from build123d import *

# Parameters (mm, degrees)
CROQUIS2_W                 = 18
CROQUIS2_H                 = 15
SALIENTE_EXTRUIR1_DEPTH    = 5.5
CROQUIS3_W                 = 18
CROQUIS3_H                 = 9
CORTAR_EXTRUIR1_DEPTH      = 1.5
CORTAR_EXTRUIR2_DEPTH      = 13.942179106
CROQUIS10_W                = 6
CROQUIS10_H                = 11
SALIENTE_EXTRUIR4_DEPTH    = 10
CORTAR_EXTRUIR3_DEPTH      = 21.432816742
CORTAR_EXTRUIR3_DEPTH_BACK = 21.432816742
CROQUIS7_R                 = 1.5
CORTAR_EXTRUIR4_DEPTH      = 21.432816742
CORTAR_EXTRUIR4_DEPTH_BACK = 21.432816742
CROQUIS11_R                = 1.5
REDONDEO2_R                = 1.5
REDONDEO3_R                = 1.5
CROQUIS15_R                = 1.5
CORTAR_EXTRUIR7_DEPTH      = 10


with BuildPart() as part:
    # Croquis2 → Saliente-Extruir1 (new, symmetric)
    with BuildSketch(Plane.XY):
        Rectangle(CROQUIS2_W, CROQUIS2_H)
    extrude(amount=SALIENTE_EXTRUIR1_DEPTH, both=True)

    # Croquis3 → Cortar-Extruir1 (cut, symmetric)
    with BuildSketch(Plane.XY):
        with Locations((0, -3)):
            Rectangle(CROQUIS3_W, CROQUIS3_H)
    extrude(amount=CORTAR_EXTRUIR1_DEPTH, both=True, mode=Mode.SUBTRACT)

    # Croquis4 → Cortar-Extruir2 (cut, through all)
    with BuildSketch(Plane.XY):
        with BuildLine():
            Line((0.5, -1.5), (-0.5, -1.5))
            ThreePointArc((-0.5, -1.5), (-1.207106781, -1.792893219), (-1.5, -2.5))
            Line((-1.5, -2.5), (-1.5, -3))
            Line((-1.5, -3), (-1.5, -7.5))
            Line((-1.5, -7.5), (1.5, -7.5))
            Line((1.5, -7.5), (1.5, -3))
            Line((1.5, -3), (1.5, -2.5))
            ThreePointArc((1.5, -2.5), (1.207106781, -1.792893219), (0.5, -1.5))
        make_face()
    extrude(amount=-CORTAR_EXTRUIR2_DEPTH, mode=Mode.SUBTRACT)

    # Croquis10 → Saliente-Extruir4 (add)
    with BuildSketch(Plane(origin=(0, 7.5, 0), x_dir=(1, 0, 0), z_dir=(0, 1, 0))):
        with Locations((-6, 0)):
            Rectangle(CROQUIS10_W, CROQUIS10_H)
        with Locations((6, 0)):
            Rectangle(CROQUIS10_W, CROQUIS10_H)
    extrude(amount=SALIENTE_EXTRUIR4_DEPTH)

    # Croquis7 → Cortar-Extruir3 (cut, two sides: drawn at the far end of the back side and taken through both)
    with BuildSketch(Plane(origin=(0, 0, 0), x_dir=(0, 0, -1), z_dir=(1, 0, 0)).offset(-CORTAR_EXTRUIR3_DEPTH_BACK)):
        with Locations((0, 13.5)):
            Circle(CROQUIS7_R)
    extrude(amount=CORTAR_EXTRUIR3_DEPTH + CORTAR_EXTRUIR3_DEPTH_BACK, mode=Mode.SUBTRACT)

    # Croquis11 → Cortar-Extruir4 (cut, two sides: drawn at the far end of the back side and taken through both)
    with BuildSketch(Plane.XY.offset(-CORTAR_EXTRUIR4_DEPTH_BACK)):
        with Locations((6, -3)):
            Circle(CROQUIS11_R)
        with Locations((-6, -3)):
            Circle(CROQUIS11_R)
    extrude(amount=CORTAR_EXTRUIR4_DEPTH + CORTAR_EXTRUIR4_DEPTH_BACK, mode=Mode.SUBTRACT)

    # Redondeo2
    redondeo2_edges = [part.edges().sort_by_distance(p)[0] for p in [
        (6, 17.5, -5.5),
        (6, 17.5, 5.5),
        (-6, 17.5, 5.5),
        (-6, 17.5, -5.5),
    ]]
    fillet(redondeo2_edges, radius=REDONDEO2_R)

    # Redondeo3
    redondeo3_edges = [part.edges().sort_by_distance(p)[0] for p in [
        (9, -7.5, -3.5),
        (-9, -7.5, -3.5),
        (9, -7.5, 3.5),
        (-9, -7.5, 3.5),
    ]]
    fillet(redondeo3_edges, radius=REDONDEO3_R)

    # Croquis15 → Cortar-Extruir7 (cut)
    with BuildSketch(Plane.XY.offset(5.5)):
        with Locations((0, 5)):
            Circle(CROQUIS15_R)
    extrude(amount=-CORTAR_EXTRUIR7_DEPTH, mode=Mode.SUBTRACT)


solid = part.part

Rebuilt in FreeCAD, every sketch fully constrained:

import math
import FreeCAD as App
import Part
import Sketcher
from FreeCAD import Vector


def edges_at(feature, points):
    """Names of the edges that pass closest to the given points."""
    edges = feature.Shape.Edges
    near = lambda p: min(range(len(edges)), key=lambda i: edges[i].distToShape(Part.Vertex(*p))[0])
    return sorted({f"Edge{near(p) + 1}" for p in points})

doc = App.newDocument("Part")
body = doc.addObject("PartDesign::Body", "Body")

# Sketch on XY plane
sketch1 = body.newObject("Sketcher::SketchObject", "Sketch")
sketch1.AttachmentSupport = (doc.getObject("XY_Plane"), [""])
sketch1.MapMode = "FlatFace"
sketch1.addGeometry([
    Part.LineSegment(Vector(-9, 8, 0), Vector(-9, -8, 0)),
    Part.LineSegment(Vector(-9, -8, 0), Vector(9, -8, 0)),
    Part.LineSegment(Vector(9, -8, 0), Vector(9, 8, 0)),
    Part.LineSegment(Vector(9, 8, 0), Vector(-9, 8, 0)),
], False)
sketch1.addConstraint([
    Sketcher.Constraint("Coincident", 0, 2, 1, 1),
    Sketcher.Constraint("Coincident", 1, 2, 2, 1),
    Sketcher.Constraint("Coincident", 2, 2, 3, 1),
    Sketcher.Constraint("Coincident", 3, 2, 0, 1),
    Sketcher.Constraint("Vertical", 0),
    Sketcher.Constraint("Horizontal", 1),
    Sketcher.Constraint("Vertical", 2),
    Sketcher.Constraint("Horizontal", 3),
    Sketcher.Constraint("Symmetric", 0, 2, 2, 2, -1, 1),
    Sketcher.Constraint("DistanceX", 1, 1, 1, 2, 18.0),
    Sketcher.Constraint("DistanceY", 0, 2, 0, 1, 15.0),
])
pad1 = body.newObject("PartDesign::Pad", "Pad")
pad1.Profile = sketch1
pad1.Length = 11
pad1.Midplane = True

# Sketch on XY plane
sketch2 = body.newObject("Sketcher::SketchObject", "Sketch001")
sketch2.AttachmentSupport = (doc.getObject("XY_Plane"), [""])
sketch2.MapMode = "FlatFace"
sketch2.addGeometry([
    Part.LineSegment(Vector(-9, 2, 0), Vector(-9, -8, 0)),
    Part.LineSegment(Vector(-9, -8, 0), Vector(9, -8, 0)),
    Part.LineSegment(Vector(9, -8, 0), Vector(9, 2, 0)),
    Part.LineSegment(Vector(9, 2, 0), Vector(-9, 2, 0)),
], False)
sketch2.addConstraint([
    Sketcher.Constraint("Coincident", 0, 2, 1, 1),
    Sketcher.Constraint("Coincident", 1, 2, 2, 1),
    Sketcher.Constraint("Coincident", 2, 2, 3, 1),
    Sketcher.Constraint("Coincident", 3, 2, 0, 1),
    Sketcher.Constraint("Vertical", 0),
    Sketcher.Constraint("Horizontal", 1),
    Sketcher.Constraint("Vertical", 2),
    Sketcher.Constraint("Horizontal", 3),
    Sketcher.Constraint("DistanceX", 1, 1, 1, 2, 18.0),
    Sketcher.Constraint("DistanceY", 0, 2, 0, 1, 9.0),
    Sketcher.Constraint("DistanceX", 0, 2, -1, 1, 9.0),
    Sketcher.Constraint("DistanceY", 0, 2, -1, 1, 7.5),
])
pocket1 = body.newObject("PartDesign::Pocket", "Pocket")
pocket1.Profile = sketch2
pocket1.Length = 3
pocket1.Midplane = True

# Sketch on XY plane
sketch3 = body.newObject("Sketcher::SketchObject", "Sketch002")
sketch3.AttachmentSupport = (doc.getObject("XY_Plane"), [""])
sketch3.MapMode = "FlatFace"
sketch3.addGeometry([
    Part.LineSegment(Vector(0.5, -1.5, 0), Vector(-0.5, -1.5, 0)),  # 0
    Part.ArcOfCircle(Part.Circle(Vector(-0.5, -2.5, 0), Vector(0, 0, 1), 1), math.radians(90), math.radians(180)),  # 1
    Part.LineSegment(Vector(-1.5, -2.5, 0), Vector(-1.5, -7.5, 0)),  # 2
    Part.LineSegment(Vector(-1.5, -7.5, 0), Vector(1.5, -7.5, 0)),  # 3
    Part.LineSegment(Vector(1.5, -7.5, 0), Vector(1.5, -2.5, 0)),  # 4
    Part.ArcOfCircle(Part.Circle(Vector(0.5, -2.5, 0), Vector(0, 0, 1), 1), math.radians(0), math.radians(90)),  # 5
], False)
sketch3.addConstraint([
    Sketcher.Constraint("Tangent", 0, 2, 1, 1),
    Sketcher.Constraint("Tangent", 1, 2, 2, 1),
    Sketcher.Constraint("Coincident", 2, 2, 3, 1),
    Sketcher.Constraint("Coincident", 3, 2, 4, 1),
    Sketcher.Constraint("Tangent", 4, 2, 5, 1),
    Sketcher.Constraint("Tangent", 5, 2, 0, 1),
    Sketcher.Constraint("Horizontal", 0),
    Sketcher.Constraint("Vertical", 2),
    Sketcher.Constraint("Horizontal", 3),
    Sketcher.Constraint("Vertical", 4),
    Sketcher.Constraint("Equal", 1, 5),
    Sketcher.Constraint("Radius", 1, 1.0),
    Sketcher.Constraint("DistanceX", 0, 2, 0, 1, 1.0),
    Sketcher.Constraint("DistanceY", 2, 2, 2, 1, 5.0),
    Sketcher.Constraint("DistanceX", 1, 3, -1, 1, 0.5),
    Sketcher.Constraint("DistanceY", 1, 3, -1, 1, 2.5),
])
pocket2 = body.newObject("PartDesign::Pocket", "Pocket001")
pocket2.Profile = sketch3
pocket2.Type = "ThroughAll"

# Sketch on XZ plane
sketch4 = body.newObject("Sketcher::SketchObject", "Sketch003")
sketch4.AttachmentSupport = (doc.getObject("XZ_Plane"), [""])
sketch4.MapMode = "FlatFace"
sketch4.AttachmentOffset = App.Placement(Vector(0, 0, -7.5), App.Rotation())
sketch4.addGeometry([
    Part.LineSegment(Vector(-9, -6, 0), Vector(-9, 6, 0)),  # 0
    Part.LineSegment(Vector(-9, 6, 0), Vector(-3, 6, 0)),  # 1
    Part.LineSegment(Vector(-3, 6, 0), Vector(-3, -6, 0)),  # 2
    Part.LineSegment(Vector(-3, -6, 0), Vector(-9, -6, 0)),  # 3
    Part.LineSegment(Vector(3, -6, 0), Vector(3, 6, 0)),  # 4
    Part.LineSegment(Vector(3, 6, 0), Vector(9, 6, 0)),  # 5
    Part.LineSegment(Vector(9, 6, 0), Vector(9, -6, 0)),  # 6
    Part.LineSegment(Vector(9, -6, 0), Vector(3, -6, 0)),  # 7
], False)
sketch4.addConstraint([
    Sketcher.Constraint("Coincident", 0, 2, 1, 1),
    Sketcher.Constraint("Coincident", 1, 2, 2, 1),
    Sketcher.Constraint("Coincident", 2, 2, 3, 1),
    Sketcher.Constraint("Coincident", 3, 2, 0, 1),
    Sketcher.Constraint("Coincident", 4, 2, 5, 1),
    Sketcher.Constraint("Coincident", 5, 2, 6, 1),
    Sketcher.Constraint("Coincident", 6, 2, 7, 1),
    Sketcher.Constraint("Coincident", 7, 2, 4, 1),
    Sketcher.Constraint("Vertical", 0),
    Sketcher.Constraint("Horizontal", 1),
    Sketcher.Constraint("Vertical", 2),
    Sketcher.Constraint("Horizontal", 3),
    Sketcher.Constraint("Vertical", 4),
    Sketcher.Constraint("Horizontal", 5),
    Sketcher.Constraint("Vertical", 6),
    Sketcher.Constraint("Horizontal", 7),
    Sketcher.Constraint("Symmetric", 2, 2, 4, 2, -1, 1),
    Sketcher.Constraint("Symmetric", 0, 2, 6, 2, -1, 1),
    Sketcher.Constraint("Horizontal", 1, 2, 4, 2),
    Sketcher.Constraint("DistanceX", 1, 1, 1, 2, 6.0),
    Sketcher.Constraint("DistanceY", 0, 1, 0, 2, 11.0),
    Sketcher.Constraint("DistanceX", 0, 2, -1, 1, 9.0),
])
pad2 = body.newObject("PartDesign::Pad", "Pad001")
pad2.Profile = sketch4
pad2.Length = 10
pad2.Reversed = True

# Sketch on YZ plane
sketch5 = body.newObject("Sketcher::SketchObject", "Sketch004")
sketch5.AttachmentSupport = (doc.getObject("YZ_Plane"), [""])
sketch5.MapMode = "FlatFace"
sketch5.addGeometry(Part.Circle(Vector(13.5, 0, 0), Vector(0, 0, 1), 1.5), False)
sketch5.addConstraint([
    Sketcher.Constraint("PointOnObject", 0, 3, -1),
    Sketcher.Constraint("Diameter", 0, 3.0),
    Sketcher.Constraint("DistanceX", -1, 1, 0, 3, 13.5),
])
pocket3 = body.newObject("PartDesign::Pocket", "Pocket002")
pocket3.Profile = sketch5
pocket3.Type = "ThroughAll"
pocket3.Midplane = True

# Sketch on XY plane
sketch6 = body.newObject("Sketcher::SketchObject", "Sketch005")
sketch6.AttachmentSupport = (doc.getObject("XY_Plane"), [""])
sketch6.MapMode = "FlatFace"
sketch6.addGeometry([
    Part.Circle(Vector(6, -3, 0), Vector(0, 0, 1), 1.5),
    Part.Circle(Vector(-6, -3, 0), Vector(0, 0, 1), 1.5),
], False)
sketch6.addConstraint([
    Sketcher.Constraint("Equal", 0, 1),
    Sketcher.Constraint("Symmetric", 0, 3, 1, 3, -2),
    Sketcher.Constraint("Diameter", 0, 3.0),
    Sketcher.Constraint("DistanceX", -1, 1, 0, 3, 6.0),
    Sketcher.Constraint("DistanceY", 0, 3, -1, 1, 3.0),
])
pocket4 = body.newObject("PartDesign::Pocket", "Pocket003")
pocket4.Profile = sketch6
pocket4.Type = "ThroughAll"
pocket4.Midplane = True
doc.recompute()

fillet = body.newObject("PartDesign::Fillet", "Fillet")
fillet.Base = (pocket4, edges_at(pocket4, [
    (6, 17.5, -5.5),
    (6, 17.5, 5.5),
    (-6, 17.5, 5.5),
    (-6, 17.5, -5.5),
]))
fillet.Radius = 1.5
doc.recompute()

fillet2 = body.newObject("PartDesign::Fillet", "Fillet001")
fillet2.Base = (fillet, edges_at(fillet, [
    (9, -7.5, -3.5),
    (-9, -7.5, -3.5),
    (9, -7.5, 3.5),
    (-9, -7.5, 3.5),
]))
fillet2.Radius = 1.5

# Sketch on XY plane
sketch7 = body.newObject("Sketcher::SketchObject", "Sketch006")
sketch7.AttachmentSupport = (doc.getObject("XY_Plane"), [""])
sketch7.MapMode = "FlatFace"
sketch7.AttachmentOffset = App.Placement(Vector(0, 0, 5.5), App.Rotation())
sketch7.addGeometry(Part.Circle(Vector(0, 5, 0), Vector(0, 0, 1), 1.5), False)
sketch7.addConstraint([
    Sketcher.Constraint("PointOnObject", 0, 3, -2),
    Sketcher.Constraint("Diameter", 0, 3.0),
    Sketcher.Constraint("DistanceY", -1, 1, 0, 3, 5.0),
])
pocket5 = body.newObject("PartDesign::Pocket", "Pocket004")
pocket5.Profile = sketch7
pocket5.Length = 10

doc.recompute()
